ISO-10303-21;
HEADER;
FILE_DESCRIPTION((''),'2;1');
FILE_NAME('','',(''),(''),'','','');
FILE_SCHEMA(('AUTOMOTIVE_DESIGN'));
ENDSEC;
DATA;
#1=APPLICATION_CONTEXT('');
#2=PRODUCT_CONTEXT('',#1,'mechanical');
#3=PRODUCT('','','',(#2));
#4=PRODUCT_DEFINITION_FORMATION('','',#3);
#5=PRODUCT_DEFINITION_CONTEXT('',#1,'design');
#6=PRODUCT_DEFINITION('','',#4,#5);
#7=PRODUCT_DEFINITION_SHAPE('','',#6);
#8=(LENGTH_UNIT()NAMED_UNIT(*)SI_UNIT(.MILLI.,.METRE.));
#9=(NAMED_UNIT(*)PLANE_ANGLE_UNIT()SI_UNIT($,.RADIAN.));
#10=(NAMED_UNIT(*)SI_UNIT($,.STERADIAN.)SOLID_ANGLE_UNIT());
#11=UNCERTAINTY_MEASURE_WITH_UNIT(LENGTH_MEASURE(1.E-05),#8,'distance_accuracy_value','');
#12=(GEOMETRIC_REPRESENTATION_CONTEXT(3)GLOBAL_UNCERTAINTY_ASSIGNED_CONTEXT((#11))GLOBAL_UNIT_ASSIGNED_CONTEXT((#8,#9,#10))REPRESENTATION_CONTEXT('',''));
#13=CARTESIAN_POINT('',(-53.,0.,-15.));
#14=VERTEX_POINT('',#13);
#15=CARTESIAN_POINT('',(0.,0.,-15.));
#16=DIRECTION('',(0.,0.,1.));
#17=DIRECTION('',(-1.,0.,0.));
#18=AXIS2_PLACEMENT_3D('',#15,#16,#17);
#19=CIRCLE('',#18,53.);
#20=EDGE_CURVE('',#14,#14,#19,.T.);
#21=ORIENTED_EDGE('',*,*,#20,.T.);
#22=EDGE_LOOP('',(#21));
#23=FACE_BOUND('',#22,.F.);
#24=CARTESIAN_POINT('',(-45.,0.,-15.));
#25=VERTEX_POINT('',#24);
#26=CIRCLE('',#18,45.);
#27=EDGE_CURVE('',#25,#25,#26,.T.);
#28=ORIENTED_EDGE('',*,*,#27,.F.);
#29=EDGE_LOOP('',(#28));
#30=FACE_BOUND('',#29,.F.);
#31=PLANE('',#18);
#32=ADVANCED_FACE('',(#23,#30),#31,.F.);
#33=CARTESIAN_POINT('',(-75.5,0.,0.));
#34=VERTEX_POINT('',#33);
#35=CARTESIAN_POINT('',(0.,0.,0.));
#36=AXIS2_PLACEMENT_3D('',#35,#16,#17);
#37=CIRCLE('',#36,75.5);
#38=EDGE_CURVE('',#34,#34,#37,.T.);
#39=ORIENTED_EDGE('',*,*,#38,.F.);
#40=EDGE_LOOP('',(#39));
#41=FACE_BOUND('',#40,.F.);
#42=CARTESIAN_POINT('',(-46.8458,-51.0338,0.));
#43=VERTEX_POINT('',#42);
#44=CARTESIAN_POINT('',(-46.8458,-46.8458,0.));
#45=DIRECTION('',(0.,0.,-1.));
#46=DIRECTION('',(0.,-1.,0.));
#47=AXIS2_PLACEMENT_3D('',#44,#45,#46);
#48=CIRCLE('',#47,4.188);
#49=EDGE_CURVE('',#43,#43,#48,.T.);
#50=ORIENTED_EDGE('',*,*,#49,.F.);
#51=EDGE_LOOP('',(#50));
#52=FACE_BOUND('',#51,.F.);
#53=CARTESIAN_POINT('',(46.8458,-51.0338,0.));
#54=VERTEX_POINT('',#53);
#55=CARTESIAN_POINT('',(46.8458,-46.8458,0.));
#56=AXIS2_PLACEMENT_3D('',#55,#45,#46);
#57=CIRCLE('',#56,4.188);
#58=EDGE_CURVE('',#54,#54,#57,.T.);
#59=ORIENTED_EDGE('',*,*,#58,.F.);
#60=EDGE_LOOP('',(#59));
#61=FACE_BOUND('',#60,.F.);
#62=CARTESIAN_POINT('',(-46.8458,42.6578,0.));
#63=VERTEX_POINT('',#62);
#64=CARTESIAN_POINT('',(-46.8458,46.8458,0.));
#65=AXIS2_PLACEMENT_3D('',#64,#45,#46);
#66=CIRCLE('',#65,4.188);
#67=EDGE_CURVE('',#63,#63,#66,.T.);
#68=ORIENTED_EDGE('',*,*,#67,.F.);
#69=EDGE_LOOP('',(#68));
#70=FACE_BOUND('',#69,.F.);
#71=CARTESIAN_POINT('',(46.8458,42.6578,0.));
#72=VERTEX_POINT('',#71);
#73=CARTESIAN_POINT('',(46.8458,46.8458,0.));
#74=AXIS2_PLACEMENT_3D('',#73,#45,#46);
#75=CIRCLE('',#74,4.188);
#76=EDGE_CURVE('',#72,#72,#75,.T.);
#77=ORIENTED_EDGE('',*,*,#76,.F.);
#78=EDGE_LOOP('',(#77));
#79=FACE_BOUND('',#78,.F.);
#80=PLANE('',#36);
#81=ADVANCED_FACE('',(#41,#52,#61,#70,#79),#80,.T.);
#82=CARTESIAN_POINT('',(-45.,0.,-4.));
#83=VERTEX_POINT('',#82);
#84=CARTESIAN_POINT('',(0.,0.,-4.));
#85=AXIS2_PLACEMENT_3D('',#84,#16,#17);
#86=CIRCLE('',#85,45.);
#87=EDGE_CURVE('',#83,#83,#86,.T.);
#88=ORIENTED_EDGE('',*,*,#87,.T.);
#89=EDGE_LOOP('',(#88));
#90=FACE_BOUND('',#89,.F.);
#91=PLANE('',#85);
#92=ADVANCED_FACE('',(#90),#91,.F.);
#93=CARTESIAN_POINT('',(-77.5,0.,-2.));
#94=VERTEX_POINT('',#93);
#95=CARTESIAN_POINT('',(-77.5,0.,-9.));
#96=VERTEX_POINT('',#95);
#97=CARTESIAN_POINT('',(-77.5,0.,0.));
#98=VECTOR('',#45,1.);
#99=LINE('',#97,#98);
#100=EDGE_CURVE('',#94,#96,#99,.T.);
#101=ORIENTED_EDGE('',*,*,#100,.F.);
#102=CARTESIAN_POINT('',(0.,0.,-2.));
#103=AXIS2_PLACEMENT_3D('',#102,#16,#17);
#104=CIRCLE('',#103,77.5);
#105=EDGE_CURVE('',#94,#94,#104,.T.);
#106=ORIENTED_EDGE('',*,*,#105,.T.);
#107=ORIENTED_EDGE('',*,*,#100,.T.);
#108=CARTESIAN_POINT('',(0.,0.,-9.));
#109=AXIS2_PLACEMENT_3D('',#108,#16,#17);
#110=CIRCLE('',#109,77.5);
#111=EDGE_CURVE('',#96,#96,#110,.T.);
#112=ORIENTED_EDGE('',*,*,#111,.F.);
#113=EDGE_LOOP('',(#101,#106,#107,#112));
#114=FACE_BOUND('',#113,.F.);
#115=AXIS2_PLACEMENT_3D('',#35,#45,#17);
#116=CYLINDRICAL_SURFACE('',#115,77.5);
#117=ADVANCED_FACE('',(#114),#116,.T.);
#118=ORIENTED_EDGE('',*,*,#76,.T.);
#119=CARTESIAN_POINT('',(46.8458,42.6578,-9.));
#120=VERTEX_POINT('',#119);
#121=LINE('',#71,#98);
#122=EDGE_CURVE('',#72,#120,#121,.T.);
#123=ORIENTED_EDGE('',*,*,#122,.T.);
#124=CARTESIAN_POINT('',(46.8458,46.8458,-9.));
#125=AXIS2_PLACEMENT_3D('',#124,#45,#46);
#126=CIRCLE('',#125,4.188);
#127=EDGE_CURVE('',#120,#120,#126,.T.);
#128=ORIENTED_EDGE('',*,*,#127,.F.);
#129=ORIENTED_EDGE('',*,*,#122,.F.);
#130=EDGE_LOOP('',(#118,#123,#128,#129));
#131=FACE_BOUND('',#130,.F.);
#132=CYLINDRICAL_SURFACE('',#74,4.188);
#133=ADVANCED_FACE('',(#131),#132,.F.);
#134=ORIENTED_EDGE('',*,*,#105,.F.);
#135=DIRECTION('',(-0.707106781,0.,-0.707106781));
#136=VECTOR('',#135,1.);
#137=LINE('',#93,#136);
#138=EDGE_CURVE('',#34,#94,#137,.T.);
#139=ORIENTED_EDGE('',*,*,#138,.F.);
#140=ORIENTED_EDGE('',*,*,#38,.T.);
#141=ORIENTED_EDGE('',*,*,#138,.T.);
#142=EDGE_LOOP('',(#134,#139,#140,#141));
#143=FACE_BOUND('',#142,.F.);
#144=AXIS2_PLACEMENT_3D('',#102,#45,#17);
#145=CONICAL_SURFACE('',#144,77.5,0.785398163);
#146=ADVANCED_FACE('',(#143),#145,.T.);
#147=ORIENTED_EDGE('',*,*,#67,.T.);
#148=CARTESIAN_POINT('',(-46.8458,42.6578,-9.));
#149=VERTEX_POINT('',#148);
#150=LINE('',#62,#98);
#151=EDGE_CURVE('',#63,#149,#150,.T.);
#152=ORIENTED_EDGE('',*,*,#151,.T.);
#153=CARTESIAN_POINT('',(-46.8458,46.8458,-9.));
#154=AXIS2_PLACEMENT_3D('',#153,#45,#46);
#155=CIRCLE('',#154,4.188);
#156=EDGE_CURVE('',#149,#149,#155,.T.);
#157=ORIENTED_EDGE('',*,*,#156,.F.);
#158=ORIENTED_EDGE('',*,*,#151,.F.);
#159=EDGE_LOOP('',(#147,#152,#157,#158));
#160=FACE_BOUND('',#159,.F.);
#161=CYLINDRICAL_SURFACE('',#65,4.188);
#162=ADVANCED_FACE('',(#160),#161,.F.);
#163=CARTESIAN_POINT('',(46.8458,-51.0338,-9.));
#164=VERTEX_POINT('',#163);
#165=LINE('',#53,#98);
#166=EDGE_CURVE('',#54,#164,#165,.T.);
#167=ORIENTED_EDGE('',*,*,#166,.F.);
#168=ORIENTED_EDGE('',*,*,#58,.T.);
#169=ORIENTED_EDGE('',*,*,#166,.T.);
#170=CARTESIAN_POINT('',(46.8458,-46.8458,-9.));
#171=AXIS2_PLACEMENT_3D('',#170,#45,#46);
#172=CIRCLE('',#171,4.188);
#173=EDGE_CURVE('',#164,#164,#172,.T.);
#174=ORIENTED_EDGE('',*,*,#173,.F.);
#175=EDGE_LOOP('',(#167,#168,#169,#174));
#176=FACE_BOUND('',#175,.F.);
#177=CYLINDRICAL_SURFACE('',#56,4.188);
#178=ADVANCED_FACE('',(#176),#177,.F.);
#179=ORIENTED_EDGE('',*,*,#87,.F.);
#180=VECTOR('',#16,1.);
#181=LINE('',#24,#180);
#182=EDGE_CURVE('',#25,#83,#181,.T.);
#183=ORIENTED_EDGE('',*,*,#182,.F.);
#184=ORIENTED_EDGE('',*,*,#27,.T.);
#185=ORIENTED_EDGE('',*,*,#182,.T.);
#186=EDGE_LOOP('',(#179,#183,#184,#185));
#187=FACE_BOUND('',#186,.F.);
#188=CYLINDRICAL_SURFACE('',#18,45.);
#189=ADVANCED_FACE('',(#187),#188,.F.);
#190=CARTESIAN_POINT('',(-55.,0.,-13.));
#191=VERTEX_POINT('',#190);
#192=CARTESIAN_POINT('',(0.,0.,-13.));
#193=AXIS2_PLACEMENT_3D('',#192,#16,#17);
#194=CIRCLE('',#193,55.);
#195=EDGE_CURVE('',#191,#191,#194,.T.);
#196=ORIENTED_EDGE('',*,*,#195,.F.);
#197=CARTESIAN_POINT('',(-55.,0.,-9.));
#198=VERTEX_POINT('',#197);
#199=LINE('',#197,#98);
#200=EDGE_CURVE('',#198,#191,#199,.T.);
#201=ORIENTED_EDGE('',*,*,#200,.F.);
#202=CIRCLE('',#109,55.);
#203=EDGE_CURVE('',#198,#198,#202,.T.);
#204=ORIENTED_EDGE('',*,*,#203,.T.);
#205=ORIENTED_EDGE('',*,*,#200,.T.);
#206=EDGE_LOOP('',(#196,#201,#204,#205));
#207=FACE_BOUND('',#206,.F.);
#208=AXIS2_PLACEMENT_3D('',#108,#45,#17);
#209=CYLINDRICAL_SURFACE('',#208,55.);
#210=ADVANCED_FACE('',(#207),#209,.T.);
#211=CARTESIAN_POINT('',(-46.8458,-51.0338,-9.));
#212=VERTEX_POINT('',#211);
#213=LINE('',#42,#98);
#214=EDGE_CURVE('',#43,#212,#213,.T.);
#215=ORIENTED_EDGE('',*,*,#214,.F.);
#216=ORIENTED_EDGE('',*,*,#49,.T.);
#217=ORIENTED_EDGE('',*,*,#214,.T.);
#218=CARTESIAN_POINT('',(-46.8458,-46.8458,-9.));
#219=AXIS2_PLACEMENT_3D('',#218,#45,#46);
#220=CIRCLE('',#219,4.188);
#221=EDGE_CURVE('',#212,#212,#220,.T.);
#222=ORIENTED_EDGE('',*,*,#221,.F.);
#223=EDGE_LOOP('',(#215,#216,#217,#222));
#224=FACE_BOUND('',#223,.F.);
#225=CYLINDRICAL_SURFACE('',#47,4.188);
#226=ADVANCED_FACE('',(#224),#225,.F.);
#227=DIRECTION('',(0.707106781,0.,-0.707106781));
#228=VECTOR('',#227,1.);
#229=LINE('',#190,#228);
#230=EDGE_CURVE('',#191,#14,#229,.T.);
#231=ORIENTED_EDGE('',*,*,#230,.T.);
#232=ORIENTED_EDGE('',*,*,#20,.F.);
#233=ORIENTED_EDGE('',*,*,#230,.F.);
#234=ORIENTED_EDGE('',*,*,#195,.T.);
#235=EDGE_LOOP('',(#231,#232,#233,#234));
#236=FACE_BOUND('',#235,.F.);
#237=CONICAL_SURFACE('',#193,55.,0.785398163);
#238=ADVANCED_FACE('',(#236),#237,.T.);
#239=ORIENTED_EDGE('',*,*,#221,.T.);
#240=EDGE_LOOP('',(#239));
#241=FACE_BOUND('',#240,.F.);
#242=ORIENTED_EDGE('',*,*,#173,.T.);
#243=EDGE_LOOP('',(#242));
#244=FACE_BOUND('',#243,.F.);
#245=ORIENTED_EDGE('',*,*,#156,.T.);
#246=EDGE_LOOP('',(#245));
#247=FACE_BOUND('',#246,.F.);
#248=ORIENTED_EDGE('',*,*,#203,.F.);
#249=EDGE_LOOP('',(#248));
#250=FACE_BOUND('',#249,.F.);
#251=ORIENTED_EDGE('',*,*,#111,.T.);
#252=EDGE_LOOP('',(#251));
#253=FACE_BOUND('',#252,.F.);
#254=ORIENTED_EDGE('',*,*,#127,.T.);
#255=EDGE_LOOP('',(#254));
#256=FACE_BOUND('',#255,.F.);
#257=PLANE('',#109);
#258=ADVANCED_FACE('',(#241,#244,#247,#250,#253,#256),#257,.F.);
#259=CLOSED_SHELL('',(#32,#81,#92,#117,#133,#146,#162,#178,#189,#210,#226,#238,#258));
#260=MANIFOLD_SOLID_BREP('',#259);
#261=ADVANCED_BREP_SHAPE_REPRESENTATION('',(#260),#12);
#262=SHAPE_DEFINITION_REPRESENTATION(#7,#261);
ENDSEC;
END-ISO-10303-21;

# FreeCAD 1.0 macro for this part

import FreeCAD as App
import Part
import Sketcher

V = App.Vector
Q = App.Units.Quantity


def edges_at(feature, points):
    """Names of the edges that pass closest to the given points."""
    edges = feature.Shape.Edges
    near = lambda p: min(range(len(edges)), key=lambda i: edges[i].distToShape(Part.Vertex(*p))[0])
    return sorted({f"Edge{near(p) + 1}" for p in points})

doc = App.newDocument("Part")
body = doc.addObject("PartDesign::Body", "Body")

sketch1 = doc.addObject("Sketcher::SketchObject", "Sketch")
body.addObject(sketch1)
sketch1.AttachmentSupport = (doc.XZ_Plane, [""])
sketch1.MapMode = "FlatFace"
sketch1.addGeometry([
    Part.LineSegment(V(-77.5, 0, 0), V(0, 0, 0)),
    Part.LineSegment(V(0, 0, 0), V(0, -4, 0)),
    Part.LineSegment(V(0, -4, 0), V(-45, -4, 0)),
    Part.LineSegment(V(-45, -4, 0), V(-45, -15, 0)),
    Part.LineSegment(V(-45, -15, 0), V(-55, -15, 0)),
    Part.LineSegment(V(-55, -15, 0), V(-55, -9, 0)),
    Part.LineSegment(V(-55, -9, 0), V(-77.5, -9, 0)),
    Part.LineSegment(V(-77.5, -9, 0), V(-77.5, 0, 0)),
], False)
sketch1.addConstraint([
    Sketcher.Constraint("Coincident", 0, 2, 1, 1),
    Sketcher.Constraint("Coincident", 1, 2, 2, 1),
    Sketcher.Constraint("Coincident", 2, 2, 3, 1),
    Sketcher.Constraint("Coincident", 3, 2, 4, 1),
    Sketcher.Constraint("Coincident", 4, 2, 5, 1),
    Sketcher.Constraint("Coincident", 5, 2, 6, 1),
    Sketcher.Constraint("Coincident", 6, 2, 7, 1),
    Sketcher.Constraint("Coincident", 7, 2, 0, 1),
    Sketcher.Constraint("Horizontal", 0),
    Sketcher.Constraint("Vertical", 1),
    Sketcher.Constraint("Horizontal", 2),
    Sketcher.Constraint("Vertical", 3),
    Sketcher.Constraint("Horizontal", 4),
    Sketcher.Constraint("Vertical", 5),
    Sketcher.Constraint("Horizontal", 6),
    Sketcher.Constraint("Vertical", 7),
    Sketcher.Constraint("Coincident", 0, 2, -1, 1),
    Sketcher.Constraint("DistanceY", 1, 2, 1, 1, Q("4 mm")),
    Sketcher.Constraint("DistanceY", 7, 1, 7, 2, Q("9 mm")),
    Sketcher.Constraint("DistanceY", 3, 2, -1, 1, Q("15 mm")),
    Sketcher.Constraint("DistanceX", 2, 2, 2, 1, Q("45 mm")),
    Sketcher.Constraint("DistanceX", 4, 2, 4, 1, Q("10 mm")),
    Sketcher.Constraint("DistanceX", 0, 1, 0, 2, Q("77.5 mm")),
])
revolution = doc.addObject("PartDesign::Revolution", "Revolution")
body.addObject(revolution)
revolution.Profile = sketch1
revolution.ReferenceAxis = (sketch1, ["V_Axis"])
revolution.Angle = 360

sketch2 = doc.addObject("Sketcher::SketchObject", "Sketch001")
body.addObject(sketch2)
sketch2.AttachmentSupport = (doc.XY_Plane, [""])
sketch2.MapMode = "FlatFace"
sketch2.addGeometry([
    Part.Circle(V(-46.8, -46.8, 0), V(0, 0, 1), 4.2),
    Part.Circle(V(46.8, -46.8, 0), V(0, 0, 1), 4.2),
    Part.Circle(V(46.8, 46.8, 0), V(0, 0, 1), 4.2),
    Part.Circle(V(-46.8, 46.8, 0), V(0, 0, 1), 4.2),
], False)
sketch2.addConstraint([
    Sketcher.Constraint("Equal", 0, 1),
    Sketcher.Constraint("Equal", 1, 2),
    Sketcher.Constraint("Equal", 2, 3),
    Sketcher.Constraint("Symmetric", 0, 3, 2, 3, -1, 1),
    Sketcher.Constraint("Symmetric", 1, 3, 3, 3, -1, 1),
    Sketcher.Constraint("Symmetric", 0, 3, 1, 3, -2),
    Sketcher.Constraint("Diameter", 0, Q("8.376 mm")),
    Sketcher.Constraint("DistanceX", 0, 3, -1, 1, Q("46.8458 mm")),
    Sketcher.Constraint("DistanceY", 0, 3, -1, 1, Q("46.8458 mm")),
])
doc.recompute()
hole = doc.addObject("PartDesign::Hole", "Hole")
body.addObject(hole)
hole.Profile = sketch2
hole.ThreadType = "None"
hole.Diameter = 8.376
hole.DepthType = "ThroughAll"
doc.recompute()

chamfer = doc.addObject("PartDesign::Chamfer", "Chamfer")
body.addObject(chamfer)
chamfer.Base = (hole, edges_at(hole, [(55, 0, -15), (77.5, 0, 0)]))
chamfer.Size = 2

doc.recompute()
